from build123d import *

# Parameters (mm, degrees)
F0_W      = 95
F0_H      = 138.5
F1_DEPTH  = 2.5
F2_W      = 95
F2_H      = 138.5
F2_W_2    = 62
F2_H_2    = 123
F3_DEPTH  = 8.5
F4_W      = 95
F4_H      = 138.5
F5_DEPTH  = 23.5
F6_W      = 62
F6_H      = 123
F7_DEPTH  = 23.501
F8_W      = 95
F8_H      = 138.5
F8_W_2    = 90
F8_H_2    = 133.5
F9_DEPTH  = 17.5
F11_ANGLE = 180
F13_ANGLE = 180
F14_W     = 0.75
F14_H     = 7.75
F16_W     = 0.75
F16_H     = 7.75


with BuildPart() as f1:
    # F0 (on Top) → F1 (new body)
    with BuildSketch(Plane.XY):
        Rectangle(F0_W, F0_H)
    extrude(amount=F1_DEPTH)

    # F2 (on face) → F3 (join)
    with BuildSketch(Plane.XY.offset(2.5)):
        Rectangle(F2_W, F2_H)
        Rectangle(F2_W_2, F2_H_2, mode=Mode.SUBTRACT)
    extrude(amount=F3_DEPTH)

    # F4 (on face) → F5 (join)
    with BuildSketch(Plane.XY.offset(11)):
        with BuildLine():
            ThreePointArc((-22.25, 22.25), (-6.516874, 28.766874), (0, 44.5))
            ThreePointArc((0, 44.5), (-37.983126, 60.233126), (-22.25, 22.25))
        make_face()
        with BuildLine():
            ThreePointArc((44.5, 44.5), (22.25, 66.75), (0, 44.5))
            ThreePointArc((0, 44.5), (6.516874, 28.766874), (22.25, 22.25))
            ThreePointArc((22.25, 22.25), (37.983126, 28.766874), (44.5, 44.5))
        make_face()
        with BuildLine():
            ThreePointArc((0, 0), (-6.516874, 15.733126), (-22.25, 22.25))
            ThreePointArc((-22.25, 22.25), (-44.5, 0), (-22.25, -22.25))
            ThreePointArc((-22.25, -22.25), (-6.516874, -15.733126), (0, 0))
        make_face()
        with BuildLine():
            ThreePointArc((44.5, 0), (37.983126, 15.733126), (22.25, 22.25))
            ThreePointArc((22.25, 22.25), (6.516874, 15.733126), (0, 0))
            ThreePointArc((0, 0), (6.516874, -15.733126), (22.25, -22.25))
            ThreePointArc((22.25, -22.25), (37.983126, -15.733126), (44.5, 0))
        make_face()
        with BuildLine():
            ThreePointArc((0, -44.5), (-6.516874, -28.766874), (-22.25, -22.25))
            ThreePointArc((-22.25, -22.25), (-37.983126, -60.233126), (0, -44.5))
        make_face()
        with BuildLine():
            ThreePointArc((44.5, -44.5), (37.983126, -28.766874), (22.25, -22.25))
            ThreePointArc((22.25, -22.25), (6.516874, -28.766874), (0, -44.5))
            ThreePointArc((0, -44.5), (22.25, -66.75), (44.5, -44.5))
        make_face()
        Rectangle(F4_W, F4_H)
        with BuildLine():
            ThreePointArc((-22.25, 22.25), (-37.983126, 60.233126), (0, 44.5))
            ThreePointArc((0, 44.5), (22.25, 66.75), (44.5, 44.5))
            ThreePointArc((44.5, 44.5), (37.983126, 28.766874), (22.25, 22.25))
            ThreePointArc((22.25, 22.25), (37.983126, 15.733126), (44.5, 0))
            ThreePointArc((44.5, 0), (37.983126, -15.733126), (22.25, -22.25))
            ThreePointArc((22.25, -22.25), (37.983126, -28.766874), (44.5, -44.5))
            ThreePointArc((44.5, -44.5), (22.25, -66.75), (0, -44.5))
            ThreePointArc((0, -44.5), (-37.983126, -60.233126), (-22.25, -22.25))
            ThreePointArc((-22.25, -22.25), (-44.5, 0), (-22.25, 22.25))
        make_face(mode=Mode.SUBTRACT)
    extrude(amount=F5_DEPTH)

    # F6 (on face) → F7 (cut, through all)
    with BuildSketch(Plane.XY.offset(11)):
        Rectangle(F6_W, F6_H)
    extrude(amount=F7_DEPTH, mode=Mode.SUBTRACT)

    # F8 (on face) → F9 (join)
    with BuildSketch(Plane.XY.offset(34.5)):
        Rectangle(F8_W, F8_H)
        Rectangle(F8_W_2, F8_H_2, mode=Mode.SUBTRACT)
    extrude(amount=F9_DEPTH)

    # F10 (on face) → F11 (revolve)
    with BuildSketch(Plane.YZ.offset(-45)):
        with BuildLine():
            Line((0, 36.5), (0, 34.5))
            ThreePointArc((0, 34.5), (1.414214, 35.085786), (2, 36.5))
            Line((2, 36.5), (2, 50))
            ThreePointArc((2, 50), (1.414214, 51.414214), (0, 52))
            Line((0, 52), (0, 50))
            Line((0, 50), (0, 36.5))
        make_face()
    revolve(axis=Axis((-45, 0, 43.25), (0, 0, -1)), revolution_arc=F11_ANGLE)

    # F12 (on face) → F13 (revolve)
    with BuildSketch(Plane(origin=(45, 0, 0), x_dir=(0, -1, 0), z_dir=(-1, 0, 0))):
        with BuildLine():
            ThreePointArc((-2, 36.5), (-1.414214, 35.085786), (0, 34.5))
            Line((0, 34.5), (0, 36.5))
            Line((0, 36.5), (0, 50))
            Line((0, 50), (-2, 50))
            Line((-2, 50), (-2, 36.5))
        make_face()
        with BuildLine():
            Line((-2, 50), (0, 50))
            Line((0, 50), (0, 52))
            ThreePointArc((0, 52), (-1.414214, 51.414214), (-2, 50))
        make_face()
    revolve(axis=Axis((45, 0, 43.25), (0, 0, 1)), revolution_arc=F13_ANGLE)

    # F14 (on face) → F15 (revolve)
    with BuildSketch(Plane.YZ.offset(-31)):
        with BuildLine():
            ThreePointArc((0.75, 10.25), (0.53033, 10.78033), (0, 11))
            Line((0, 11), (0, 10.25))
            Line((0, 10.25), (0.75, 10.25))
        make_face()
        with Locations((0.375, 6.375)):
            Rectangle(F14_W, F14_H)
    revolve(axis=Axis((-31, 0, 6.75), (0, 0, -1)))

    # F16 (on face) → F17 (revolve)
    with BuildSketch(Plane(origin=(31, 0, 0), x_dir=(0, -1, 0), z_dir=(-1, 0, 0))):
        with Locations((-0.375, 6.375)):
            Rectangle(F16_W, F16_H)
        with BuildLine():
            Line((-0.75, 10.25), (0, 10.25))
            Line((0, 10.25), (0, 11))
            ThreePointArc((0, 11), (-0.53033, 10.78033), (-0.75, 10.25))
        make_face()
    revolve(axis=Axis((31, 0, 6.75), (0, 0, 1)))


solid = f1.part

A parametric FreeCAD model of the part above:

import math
import FreeCAD as App
import Part
import Sketcher
Q = App.Units.Quantity


def add_polygon(sketch, points):
    """Adds a closed chain of lines whose ends are joined by coincident constraints."""
    first, n = sketch.GeometryCount, len(points)
    for a, b in zip(points, points[1:] + points[:1]):
        sketch.addGeometry(Part.LineSegment(App.Vector(*a, 0), App.Vector(*b, 0)), False)
    for i in range(n):
        sketch.addConstraint(Sketcher.Constraint("Coincident", first + i, 2, first + (i + 1) % n, 1))

doc = App.newDocument("Part")
params = doc.addObject("Spreadsheet::Sheet", "Params")
for row, (alias, value) in enumerate([
    ("sketch1_width", "95 mm"),
    ("sketch1_height", "138.5 mm"),
    ("pad1_length", "2.5 mm"),
    ("sketch2_width", "95 mm"),
    ("sketch2_width2", "62 mm"),
    ("sketch2_height", "123 mm"),
    ("sketch2_height2", "138.5 mm"),
    ("pad2_length", "8.5 mm"),
    ("sketch3_width", "95 mm"),
    ("sketch3_radius", "22.25 mm"),
    ("sketch3_height", "138.5 mm"),
    ("pad3_length", "23.5 mm"),
    ("sketch4_width", "62 mm"),
    ("sketch4_height", "123 mm"),
    ("sketch5_width", "95 mm"),
    ("sketch5_width2", "90 mm"),
    ("sketch5_height", "138.5 mm"),
    ("sketch5_height2", "133.5 mm"),
    ("pad4_length", "17.5 mm"),
    ("sketch6_radius", "1.999999 mm"),
    ("sketch6_height", "13.5 mm"),
    ("revolution_angle", "180 deg"),
    ("sketch7_radius", "1.999999 mm"),
    ("sketch7_height", "17.5 mm"),
    ("revolution2_angle", "180 deg"),
    ("sketch8_radius", "0.75 mm"),
    ("sketch8_height", "8.5 mm"),
    ("revolution3_angle", "360 deg"),
    ("sketch9_radius", "0.75 mm"),
    ("sketch9_height", "8.5 mm"),
    ("revolution4_angle", "360 deg"),
], start=1):
    params.set(f"A{row}", alias)
    params.set(f"B{row}", "=" + value)
    params.setAlias(f"B{row}", alias)

body = doc.addObject("PartDesign::Body", "Body")

# Sketch on XY plane
sketch1 = doc.addObject("Sketcher::SketchObject", "Sketch")
body.addObject(sketch1)
sketch1.AttachmentSupport = (doc.XY_Plane, [""])
sketch1.MapMode = "FlatFace"
add_polygon(sketch1, [(-48, 69), (-48, -69), (48, -69), (48, 69)])  # lines 0-3
sketch1.addConstraint([
    Sketcher.Constraint("Vertical", 0),
    Sketcher.Constraint("Horizontal", 1),
    Sketcher.Constraint("Vertical", 2),
    Sketcher.Constraint("Horizontal", 3),
    Sketcher.Constraint("Symmetric", 0, 2, 2, 2, -1, 1),
    Sketcher.Constraint("DistanceX", 1, 1, 1, 2, Q("95 mm")),
    Sketcher.Constraint("DistanceY", 0, 2, 0, 1, Q("138.5 mm")),
])
sketch1.setExpression("Constraints[9]", "Params.sketch1_width")
sketch1.setExpression("Constraints[10]", "Params.sketch1_height")
pad1 = doc.addObject("PartDesign::Pad", "Pad")
body.addObject(pad1)
pad1.Profile = sketch1
pad1.setExpression("Length", "Params.pad1_length")

# Sketch on XY plane
sketch2 = doc.addObject("Sketcher::SketchObject", "Sketch001")
body.addObject(sketch2)
sketch2.AttachmentSupport = (doc.XY_Plane, [""])
sketch2.MapMode = "FlatFace"
sketch2.AttachmentOffset = App.Placement(App.Vector(0, 0, 2.5), App.Rotation())
add_polygon(sketch2, [(-48, 69), (-48, -69), (48, -69), (48, 69)])  # lines 0-3
add_polygon(sketch2, [(31, -62), (-31, -62), (-31, 62), (31, 62)])  # lines 4-7
sketch2.addConstraint([
    Sketcher.Constraint("Vertical", 0),
    Sketcher.Constraint("Horizontal", 1),
    Sketcher.Constraint("Vertical", 2),
    Sketcher.Constraint("Horizontal", 3),
    Sketcher.Constraint("Horizontal", 4),
    Sketcher.Constraint("Vertical", 5),
    Sketcher.Constraint("Horizontal", 6),
    Sketcher.Constraint("Vertical", 7),
    Sketcher.Constraint("Symmetric", 0, 2, 2, 2, -1, 1),
    Sketcher.Constraint("Symmetric", 4, 2, 6, 2, -1, 1),
    Sketcher.Constraint("DistanceX", 1, 1, 1, 2, Q("95 mm")),
    Sketcher.Constraint("DistanceX", 4, 2, 4, 1, Q("62 mm")),
    Sketcher.Constraint("DistanceY", 5, 1, 5, 2, Q("123 mm")),
    Sketcher.Constraint("DistanceY", 0, 2, 0, 1, Q("138.5 mm")),
])
sketch2.setExpression("Constraints[18]", "Params.sketch2_width")
sketch2.setExpression("Constraints[19]", "Params.sketch2_width2")
sketch2.setExpression("Constraints[20]", "Params.sketch2_height")
sketch2.setExpression("Constraints[21]", "Params.sketch2_height2")
pad2 = doc.addObject("PartDesign::Pad", "Pad001")
body.addObject(pad2)
pad2.Profile = sketch2
pad2.setExpression("Length", "Params.pad2_length")

# Sketch on XY plane
sketch3 = doc.addObject("Sketcher::SketchObject", "Sketch002")
body.addObject(sketch3)
sketch3.AttachmentSupport = (doc.XY_Plane, [""])
sketch3.MapMode = "FlatFace"
sketch3.AttachmentOffset = App.Placement(App.Vector(0, 0, 11), App.Rotation())
add_polygon(sketch3, [(-48, 69), (-48, -69), (48, -69), (48, 69)])  # lines 0-3
sketch3.addGeometry(Part.ArcOfCircle(Part.Circle(App.Vector(-22, 0, 0), App.Vector(0, 0, 1), 22), math.radians(90), math.radians(270)), False)  # 4
sketch3.addGeometry(Part.ArcOfCircle(Part.Circle(App.Vector(-22, 45, 0), App.Vector(0, 0, 1), 22), math.radians(0), math.radians(270)), False)  # 5
sketch3.addGeometry(Part.ArcOfCircle(Part.Circle(App.Vector(22, 44, 0), App.Vector(0, 0, 1), 22), math.radians(0), math.radians(180)), False)  # 6
sketch3.addGeometry(Part.ArcOfCircle(Part.Circle(App.Vector(22, 44, 0), App.Vector(0, 0, 1), 22), math.radians(-90), math.radians(0)), False)  # 7
sketch3.addGeometry(Part.ArcOfCircle(Part.Circle(App.Vector(22, 0, 0), App.Vector(0, 0, 1), 22), math.radians(0), math.radians(90)), False)  # 8
sketch3.addGeometry(Part.ArcOfCircle(Part.Circle(App.Vector(22, 0, 0), App.Vector(0, 0, 1), 22), math.radians(-90), math.radians(0)), False)  # 9
sketch3.addGeometry(Part.ArcOfCircle(Part.Circle(App.Vector(22, -44, 0), App.Vector(0, 0, 1), 22), math.radians(0), math.radians(90)), False)  # 10
sketch3.addGeometry(Part.ArcOfCircle(Part.Circle(App.Vector(22, -44, 0), App.Vector(0, 0, 1), 22), math.radians(180), math.radians(360)), False)  # 11
sketch3.addGeometry(Part.ArcOfCircle(Part.Circle(App.Vector(-22, -45, 0), App.Vector(0, 0, 1), 22), math.radians(90), math.radians(360)), False)  # 12
sketch3.addConstraint([
    Sketcher.Constraint("Tangent", 4, 1, 5, 2),
    Sketcher.Constraint("Tangent", 5, 1, 6, 2),
    Sketcher.Constraint("Tangent", 6, 1, 7, 2),
    Sketcher.Constraint("Tangent", 7, 1, 8, 2),
    Sketcher.Constraint("Tangent", 8, 1, 9, 2),
    Sketcher.Constraint("Tangent", 9, 1, 10, 2),
    Sketcher.Constraint("Tangent", 10, 1, 11, 2),
    Sketcher.Constraint("Tangent", 11, 1, 12, 2),
    Sketcher.Constraint("Tangent", 12, 1, 4, 2),
    Sketcher.Constraint("Vertical", 0),
    Sketcher.Constraint("Horizontal", 1),
    Sketcher.Constraint("Vertical", 2),
    Sketcher.Constraint("Horizontal", 3),
    Sketcher.Constraint("Equal", 4, 5),
    Sketcher.Constraint("Equal", 5, 6),
    Sketcher.Constraint("Equal", 6, 7),
    Sketcher.Constraint("Equal", 7, 8),
    Sketcher.Constraint("Equal", 8, 9),
    Sketcher.Constraint("Equal", 9, 10),
    Sketcher.Constraint("Equal", 10, 11),
    Sketcher.Constraint("Equal", 11, 12),
    Sketcher.Constraint("Symmetric", 4, 3, 8, 3, -1, 1),
    Sketcher.Constraint("Symmetric", 0, 2, 2, 2, -1, 1),
    Sketcher.Constraint("Symmetric", 5, 3, 6, 3, -2),
    Sketcher.Constraint("Symmetric", 6, 1, 10, 1, -1),
    Sketcher.Constraint("PointOnObject", 8, 1, -1),
    Sketcher.Constraint("Horizontal", 5, 1, 6, 1),
    Sketcher.Constraint("Vertical", 4, 3, 5, 3),
    Sketcher.Constraint("DistanceX", 1, 1, 1, 2, Q("95 mm")),
    Sketcher.Constraint("Radius", 4, Q("22.25 mm")),
    Sketcher.Constraint("DistanceY", 0, 2, 0, 1, Q("138.5 mm")),
])
sketch3.setExpression("Constraints[32]", "Params.sketch3_width")
sketch3.setExpression("Constraints[33]", "Params.sketch3_radius")
sketch3.setExpression("Constraints[34]", "Params.sketch3_height")
pad3 = doc.addObject("PartDesign::Pad", "Pad002")
body.addObject(pad3)
pad3.Profile = sketch3
pad3.setExpression("Length", "Params.pad3_length")

# Sketch on XY plane
sketch4 = doc.addObject("Sketcher::SketchObject", "Sketch003")
body.addObject(sketch4)
sketch4.AttachmentSupport = (doc.XY_Plane, [""])
sketch4.MapMode = "FlatFace"
sketch4.AttachmentOffset = App.Placement(App.Vector(0, 0, 11), App.Rotation())
add_polygon(sketch4, [(-31, 62), (-31, -62), (31, -62), (31, 62)])  # lines 0-3
sketch4.addConstraint([
    Sketcher.Constraint("Vertical", 0),
    Sketcher.Constraint("Horizontal", 1),
    Sketcher.Constraint("Vertical", 2),
    Sketcher.Constraint("Horizontal", 3),
    Sketcher.Constraint("Symmetric", 0, 2, 2, 2, -1, 1),
    Sketcher.Constraint("DistanceX", 1, 1, 1, 2, Q("62 mm")),
    Sketcher.Constraint("DistanceY", 0, 2, 0, 1, Q("123 mm")),
])
sketch4.setExpression("Constraints[9]", "Params.sketch4_width")
sketch4.setExpression("Constraints[10]", "Params.sketch4_height")
pocket1 = doc.addObject("PartDesign::Pocket", "Pocket")
body.addObject(pocket1)
pocket1.Profile = sketch4
pocket1.Type = "ThroughAll"
pocket1.Reversed = True

# Sketch on XY plane
sketch5 = doc.addObject("Sketcher::SketchObject", "Sketch004")
body.addObject(sketch5)
sketch5.AttachmentSupport = (doc.XY_Plane, [""])
sketch5.MapMode = "FlatFace"
sketch5.AttachmentOffset = App.Placement(App.Vector(0, 0, 34.5), App.Rotation())
add_polygon(sketch5, [(-48, 69), (-48, -69), (48, -69), (48, 69)])  # lines 0-3
add_polygon(sketch5, [(45, -67), (-45, -67), (-45, 67), (45, 67)])  # lines 4-7
sketch5.addConstraint([
    Sketcher.Constraint("Vertical", 0),
    Sketcher.Constraint("Horizontal", 1),
    Sketcher.Constraint("Vertical", 2),
    Sketcher.Constraint("Horizontal", 3),
    Sketcher.Constraint("Horizontal", 4),
    Sketcher.Constraint("Vertical", 5),
    Sketcher.Constraint("Horizontal", 6),
    Sketcher.Constraint("Vertical", 7),
    Sketcher.Constraint("Symmetric", 0, 2, 2, 2, -1, 1),
    Sketcher.Constraint("Symmetric", 4, 2, 6, 2, -1, 1),
    Sketcher.Constraint("DistanceX", 1, 1, 1, 2, Q("95 mm")),
    Sketcher.Constraint("DistanceX", 4, 2, 4, 1, Q("90 mm")),
    Sketcher.Constraint("DistanceY", 0, 2, 0, 1, Q("138.5 mm")),
    Sketcher.Constraint("DistanceY", 5, 1, 5, 2, Q("133.5 mm")),
])
sketch5.setExpression("Constraints[18]", "Params.sketch5_width")
sketch5.setExpression("Constraints[19]", "Params.sketch5_width2")
sketch5.setExpression("Constraints[20]", "Params.sketch5_height")
sketch5.setExpression("Constraints[21]", "Params.sketch5_height2")
pad4 = doc.addObject("PartDesign::Pad", "Pad003")
body.addObject(pad4)
pad4.Profile = sketch5
pad4.setExpression("Length", "Params.pad4_length")

# Sketch on YZ plane
sketch6 = doc.addObject("Sketcher::SketchObject", "Sketch005")
body.addObject(sketch6)
sketch6.AttachmentSupport = (doc.YZ_Plane, [""])
sketch6.MapMode = "FlatFace"
sketch6.AttachmentOffset = App.Placement(App.Vector(0, 0, -45), App.Rotation())
sketch6.addGeometry([
    Part.ArcOfCircle(Part.Circle(App.Vector(0, 36.5, 0), App.Vector(0, 0, 1), 2), math.radians(-90), math.radians(0)),
    Part.LineSegment(App.Vector(2, 36.5, 0), App.Vector(2, 50, 0)),
    Part.ArcOfCircle(Part.Circle(App.Vector(0, 50, 0), App.Vector(0, 0, 1), 2), math.radians(0), math.radians(90)),
    Part.LineSegment(App.Vector(0, 52, 0), App.Vector(0, 34.5, 0)),
], False)
sketch6.addConstraint([
    Sketcher.Constraint("Tangent", 0, 2, 1, 1),
    Sketcher.Constraint("Tangent", 1, 2, 2, 1),
    Sketcher.Constraint("Coincident", 2, 2, 3, 1),
    Sketcher.Constraint("Coincident", 3, 2, 0, 1),
    Sketcher.Constraint("Vertical", 1),
    Sketcher.Constraint("Vertical", 3),
    Sketcher.Constraint("Equal", 0, 2),
    Sketcher.Constraint("PointOnObject", 0, 3, -2),
    Sketcher.Constraint("PointOnObject", 2, 2, -2),
    Sketcher.Constraint("Radius", 0, Q("1.999999 mm")),
    Sketcher.Constraint("DistanceY", 1, 1, 1, 2, Q("13.5 mm")),
    Sketcher.Constraint("DistanceY", -1, 1, 2, 3, Q("50.000001 mm")),
])
sketch6.setExpression("Constraints[9]", "Params.sketch6_radius")
sketch6.setExpression("Constraints[10]", "Params.sketch6_height")
revolution = doc.addObject("PartDesign::Revolution", "Revolution")
body.addObject(revolution)
revolution.Profile = sketch6
revolution.ReferenceAxis = (sketch6, ["V_Axis"])
revolution.setExpression("Angle", "Params.revolution_angle")
revolution.Reversed = True

# Sketch on YZ plane
sketch7 = doc.addObject("Sketcher::SketchObject", "Sketch006")
body.addObject(sketch7)
sketch7.AttachmentSupport = (doc.YZ_Plane, [""])
sketch7.MapMode = "FlatFace"
sketch7.AttachmentOffset = App.Placement(App.Vector(0, 0, 45), App.Rotation())
sketch7.addGeometry([
    Part.ArcOfCircle(Part.Circle(App.Vector(0, 36.5, 0), App.Vector(0, 0, 1), 2), math.radians(-90), math.radians(0)),
    Part.LineSegment(App.Vector(0, 34.5, 0), App.Vector(0, 52, 0)),
    Part.ArcOfCircle(Part.Circle(App.Vector(0, 50, 0), App.Vector(0, 0, 1), 2), math.radians(0), math.radians(90)),
    Part.LineSegment(App.Vector(2, 50, 0), App.Vector(2, 36.5, 0)),
], False)
sketch7.addConstraint([
    Sketcher.Constraint("Coincident", 0, 1, 1, 1),
    Sketcher.Constraint("Coincident", 1, 2, 2, 2),
    Sketcher.Constraint("Tangent", 2, 1, 3, 1),
    Sketcher.Constraint("Tangent", 3, 2, 0, 2),
    Sketcher.Constraint("Vertical", 1),
    Sketcher.Constraint("Vertical", 3),
    Sketcher.Constraint("Equal", 0, 2),
    Sketcher.Constraint("PointOnObject", 0, 3, -2),
    Sketcher.Constraint("PointOnObject", 0, 1, -2),
    Sketcher.Constraint("Radius", 0, Q("1.999999 mm")),
    Sketcher.Constraint("DistanceY", 1, 1, 1, 2, Q("17.5 mm")),
    Sketcher.Constraint("DistanceY", -1, 1, 2, 3, Q("50.000001 mm")),
])
sketch7.setExpression("Constraints[9]", "Params.sketch7_radius")
sketch7.setExpression("Constraints[10]", "Params.sketch7_height")
revolution2 = doc.addObject("PartDesign::Revolution", "Revolution001")
body.addObject(revolution2)
revolution2.Profile = sketch7
revolution2.ReferenceAxis = (sketch7, ["V_Axis"])
revolution2.setExpression("Angle", "Params.revolution2_angle")

# Sketch on YZ plane
sketch8 = doc.addObject("Sketcher::SketchObject", "Sketch007")
body.addObject(sketch8)
sketch8.AttachmentSupport = (doc.YZ_Plane, [""])
sketch8.MapMode = "FlatFace"
sketch8.AttachmentOffset = App.Placement(App.Vector(0, 0, -31), App.Rotation())
sketch8.addGeometry([
    Part.ArcOfCircle(Part.Circle(App.Vector(0, 10.2, 0), App.Vector(0, 0, 1), 0.8), math.radians(0), math.radians(90)),
    Part.LineSegment(App.Vector(0, 11, 0), App.Vector(0, 2.5, 0)),
    Part.LineSegment(App.Vector(0, 2.5, 0), App.Vector(0.8, 2.5, 0)),
    Part.LineSegment(App.Vector(0.8, 2.5, 0), App.Vector(0.8, 10.2, 0)),
], False)
sketch8.addConstraint([
    Sketcher.Constraint("Coincident", 0, 2, 1, 1),
    Sketcher.Constraint("Coincident", 1, 2, 2, 1),
    Sketcher.Constraint("Coincident", 2, 2, 3, 1),
    Sketcher.Constraint("Tangent", 3, 2, 0, 1),
    Sketcher.Constraint("Vertical", 1),
    Sketcher.Constraint("Horizontal", 2),
    Sketcher.Constraint("Vertical", 3),
    Sketcher.Constraint("PointOnObject", 0, 3, -2),
    Sketcher.Constraint("PointOnObject", 0, 2, -2),
    Sketcher.Constraint("Radius", 0, Q("0.75 mm")),
    Sketcher.Constraint("DistanceY", 1, 2, 1, 1, Q("8.5 mm")),
    Sketcher.Constraint("DistanceY", -1, 1, 0, 2, Q("11 mm")),
])
sketch8.setExpression("Constraints[9]", "Params.sketch8_radius")
sketch8.setExpression("Constraints[10]", "Params.sketch8_height")
revolution3 = doc.addObject("PartDesign::Revolution", "Revolution002")
body.addObject(revolution3)
revolution3.Profile = sketch8
revolution3.ReferenceAxis = (sketch8, ["V_Axis"])
revolution3.setExpression("Angle", "Params.revolution3_angle")

# Sketch on YZ plane
sketch9 = doc.addObject("Sketcher::SketchObject", "Sketch008")
body.addObject(sketch9)
sketch9.AttachmentSupport = (doc.YZ_Plane, [""])
sketch9.MapMode = "FlatFace"
sketch9.AttachmentOffset = App.Placement(App.Vector(0, 0, 31), App.Rotation())
sketch9.addGeometry([
    Part.LineSegment(App.Vector(0.8, 10.2, 0), App.Vector(0.8, 2.5, 0)),
    Part.LineSegment(App.Vector(0.8, 2.5, 0), App.Vector(0, 2.5, 0)),
    Part.LineSegment(App.Vector(0, 2.5, 0), App.Vector(0, 11, 0)),
    Part.ArcOfCircle(Part.Circle(App.Vector(0, 10.2, 0), App.Vector(0, 0, 1), 0.8), math.radians(0), math.radians(90)),
], False)
sketch9.addConstraint([
    Sketcher.Constraint("Coincident", 0, 2, 1, 1),
    Sketcher.Constraint("Coincident", 1, 2, 2, 1),
    Sketcher.Constraint("Coincident", 2, 2, 3, 2),
    Sketcher.Constraint("Tangent", 3, 1, 0, 1),
    Sketcher.Constraint("Vertical", 0),
    Sketcher.Constraint("Horizontal", 1),
    Sketcher.Constraint("Vertical", 2),
    Sketcher.Constraint("PointOnObject", 3, 3, -2),
    Sketcher.Constraint("PointOnObject", 1, 2, -2),
    Sketcher.Constraint("Radius", 3, Q("0.75 mm")),
    Sketcher.Constraint("DistanceY", 2, 1, 2, 2, Q("8.5 mm")),
    Sketcher.Constraint("DistanceY", -1, 1, 2, 2, Q("11 mm")),
])
sketch9.setExpression("Constraints[9]", "Params.sketch9_radius")
sketch9.setExpression("Constraints[10]", "Params.sketch9_height")
revolution4 = doc.addObject("PartDesign::Revolution", "Revolution003")
body.addObject(revolution4)
revolution4.Profile = sketch9
revolution4.ReferenceAxis = (sketch9, ["V_Axis"])
revolution4.setExpression("Angle", "Params.revolution4_angle")

doc.recompute()
